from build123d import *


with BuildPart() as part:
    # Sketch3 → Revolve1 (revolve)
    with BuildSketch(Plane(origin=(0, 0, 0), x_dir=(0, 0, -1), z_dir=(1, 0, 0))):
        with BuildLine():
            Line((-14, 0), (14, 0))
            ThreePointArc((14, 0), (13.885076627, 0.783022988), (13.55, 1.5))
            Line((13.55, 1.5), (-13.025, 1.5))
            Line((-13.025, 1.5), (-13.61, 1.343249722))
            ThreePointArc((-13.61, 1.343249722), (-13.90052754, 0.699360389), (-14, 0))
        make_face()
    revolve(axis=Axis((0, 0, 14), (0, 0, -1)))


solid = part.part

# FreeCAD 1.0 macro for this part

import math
import FreeCAD as App
import Part
import Sketcher

V = App.Vector
Q = App.Units.Quantity

doc = App.newDocument("Part")
body = doc.addObject("PartDesign::Body", "Body")

sketch1 = doc.addObject("Sketcher::SketchObject", "Sketch")
body.addObject(sketch1)
sketch1.AttachmentSupport = (doc.YZ_Plane, [""])
sketch1.MapMode = "FlatFace"
sketch1.addGeometry(Part.LineSegment(V(0, 14, 0), V(0, -14, 0)), False)
sketch1.addGeometry(Part.ArcOfCircle(Part.Circle(V(0, -11.275, 0), V(0, 0, 1), 2.725), math.radians(-90), math.radians(-56.601512)), False)
sketch1.addGeometry(Part.LineSegment(V(1.5, -13.55, 0), V(1.5, 13.025, 0)), False)
sketch1.addGeometry(Part.LineSegment(V(1.5, 13.025, 0), V(1.34325, 13.61, 0)), False)
sketch1.addGeometry(Part.ArcOfCircle(Part.Circle(V(0, 11.491769, 0), V(0, 0, 1), 2.508231), math.radians(57.619678), math.radians(90)), False)
sketch1.addConstraint(Sketcher.Constraint("Coincident", 0, 2, 1, 1))
sketch1.addConstraint(Sketcher.Constraint("Coincident", 1, 2, 2, 1))
sketch1.addConstraint(Sketcher.Constraint("Coincident", 2, 2, 3, 1))
sketch1.addConstraint(Sketcher.Constraint("Coincident", 3, 2, 4, 1))
sketch1.addConstraint(Sketcher.Constraint("Coincident", 4, 2, 0, 1))
sketch1.addConstraint(Sketcher.Constraint("Vertical", 0))
sketch1.addConstraint(Sketcher.Constraint("Vertical", 2))
sketch1.addConstraint(Sketcher.Constraint("Symmetric", 0, 2, 4, 2, -1, 1))
sketch1.addConstraint(Sketcher.Constraint("PointOnObject", 1, 3, -2))
sketch1.addConstraint(Sketcher.Constraint("PointOnObject", 4, 3, -2))
sketch1.addConstraint(Sketcher.Constraint("DistanceY", 0, 2, 0, 1, 28.0))
sketch1.addConstraint(Sketcher.Constraint("Angle", 3, Q("105 deg")))
sketch1.addConstraint(Sketcher.Constraint("Radius", 1, 2.725))
sketch1.addConstraint(Sketcher.Constraint("DistanceX", -1, 1, 1, 2, 1.5))
sketch1.addConstraint(Sketcher.Constraint("DistanceY", 1, 3, 2, 2, 24.3))
sketch1.addConstraint(Sketcher.Constraint("DistanceY", -1, 1, 3, 2, 13.61))
revolution = doc.addObject("PartDesign::Revolution", "Revolution")
body.addObject(revolution)
revolution.Profile = sketch1
revolution.ReferenceAxis = (sketch1, ["V_Axis"])
revolution.Angle = 360

doc.recompute()
